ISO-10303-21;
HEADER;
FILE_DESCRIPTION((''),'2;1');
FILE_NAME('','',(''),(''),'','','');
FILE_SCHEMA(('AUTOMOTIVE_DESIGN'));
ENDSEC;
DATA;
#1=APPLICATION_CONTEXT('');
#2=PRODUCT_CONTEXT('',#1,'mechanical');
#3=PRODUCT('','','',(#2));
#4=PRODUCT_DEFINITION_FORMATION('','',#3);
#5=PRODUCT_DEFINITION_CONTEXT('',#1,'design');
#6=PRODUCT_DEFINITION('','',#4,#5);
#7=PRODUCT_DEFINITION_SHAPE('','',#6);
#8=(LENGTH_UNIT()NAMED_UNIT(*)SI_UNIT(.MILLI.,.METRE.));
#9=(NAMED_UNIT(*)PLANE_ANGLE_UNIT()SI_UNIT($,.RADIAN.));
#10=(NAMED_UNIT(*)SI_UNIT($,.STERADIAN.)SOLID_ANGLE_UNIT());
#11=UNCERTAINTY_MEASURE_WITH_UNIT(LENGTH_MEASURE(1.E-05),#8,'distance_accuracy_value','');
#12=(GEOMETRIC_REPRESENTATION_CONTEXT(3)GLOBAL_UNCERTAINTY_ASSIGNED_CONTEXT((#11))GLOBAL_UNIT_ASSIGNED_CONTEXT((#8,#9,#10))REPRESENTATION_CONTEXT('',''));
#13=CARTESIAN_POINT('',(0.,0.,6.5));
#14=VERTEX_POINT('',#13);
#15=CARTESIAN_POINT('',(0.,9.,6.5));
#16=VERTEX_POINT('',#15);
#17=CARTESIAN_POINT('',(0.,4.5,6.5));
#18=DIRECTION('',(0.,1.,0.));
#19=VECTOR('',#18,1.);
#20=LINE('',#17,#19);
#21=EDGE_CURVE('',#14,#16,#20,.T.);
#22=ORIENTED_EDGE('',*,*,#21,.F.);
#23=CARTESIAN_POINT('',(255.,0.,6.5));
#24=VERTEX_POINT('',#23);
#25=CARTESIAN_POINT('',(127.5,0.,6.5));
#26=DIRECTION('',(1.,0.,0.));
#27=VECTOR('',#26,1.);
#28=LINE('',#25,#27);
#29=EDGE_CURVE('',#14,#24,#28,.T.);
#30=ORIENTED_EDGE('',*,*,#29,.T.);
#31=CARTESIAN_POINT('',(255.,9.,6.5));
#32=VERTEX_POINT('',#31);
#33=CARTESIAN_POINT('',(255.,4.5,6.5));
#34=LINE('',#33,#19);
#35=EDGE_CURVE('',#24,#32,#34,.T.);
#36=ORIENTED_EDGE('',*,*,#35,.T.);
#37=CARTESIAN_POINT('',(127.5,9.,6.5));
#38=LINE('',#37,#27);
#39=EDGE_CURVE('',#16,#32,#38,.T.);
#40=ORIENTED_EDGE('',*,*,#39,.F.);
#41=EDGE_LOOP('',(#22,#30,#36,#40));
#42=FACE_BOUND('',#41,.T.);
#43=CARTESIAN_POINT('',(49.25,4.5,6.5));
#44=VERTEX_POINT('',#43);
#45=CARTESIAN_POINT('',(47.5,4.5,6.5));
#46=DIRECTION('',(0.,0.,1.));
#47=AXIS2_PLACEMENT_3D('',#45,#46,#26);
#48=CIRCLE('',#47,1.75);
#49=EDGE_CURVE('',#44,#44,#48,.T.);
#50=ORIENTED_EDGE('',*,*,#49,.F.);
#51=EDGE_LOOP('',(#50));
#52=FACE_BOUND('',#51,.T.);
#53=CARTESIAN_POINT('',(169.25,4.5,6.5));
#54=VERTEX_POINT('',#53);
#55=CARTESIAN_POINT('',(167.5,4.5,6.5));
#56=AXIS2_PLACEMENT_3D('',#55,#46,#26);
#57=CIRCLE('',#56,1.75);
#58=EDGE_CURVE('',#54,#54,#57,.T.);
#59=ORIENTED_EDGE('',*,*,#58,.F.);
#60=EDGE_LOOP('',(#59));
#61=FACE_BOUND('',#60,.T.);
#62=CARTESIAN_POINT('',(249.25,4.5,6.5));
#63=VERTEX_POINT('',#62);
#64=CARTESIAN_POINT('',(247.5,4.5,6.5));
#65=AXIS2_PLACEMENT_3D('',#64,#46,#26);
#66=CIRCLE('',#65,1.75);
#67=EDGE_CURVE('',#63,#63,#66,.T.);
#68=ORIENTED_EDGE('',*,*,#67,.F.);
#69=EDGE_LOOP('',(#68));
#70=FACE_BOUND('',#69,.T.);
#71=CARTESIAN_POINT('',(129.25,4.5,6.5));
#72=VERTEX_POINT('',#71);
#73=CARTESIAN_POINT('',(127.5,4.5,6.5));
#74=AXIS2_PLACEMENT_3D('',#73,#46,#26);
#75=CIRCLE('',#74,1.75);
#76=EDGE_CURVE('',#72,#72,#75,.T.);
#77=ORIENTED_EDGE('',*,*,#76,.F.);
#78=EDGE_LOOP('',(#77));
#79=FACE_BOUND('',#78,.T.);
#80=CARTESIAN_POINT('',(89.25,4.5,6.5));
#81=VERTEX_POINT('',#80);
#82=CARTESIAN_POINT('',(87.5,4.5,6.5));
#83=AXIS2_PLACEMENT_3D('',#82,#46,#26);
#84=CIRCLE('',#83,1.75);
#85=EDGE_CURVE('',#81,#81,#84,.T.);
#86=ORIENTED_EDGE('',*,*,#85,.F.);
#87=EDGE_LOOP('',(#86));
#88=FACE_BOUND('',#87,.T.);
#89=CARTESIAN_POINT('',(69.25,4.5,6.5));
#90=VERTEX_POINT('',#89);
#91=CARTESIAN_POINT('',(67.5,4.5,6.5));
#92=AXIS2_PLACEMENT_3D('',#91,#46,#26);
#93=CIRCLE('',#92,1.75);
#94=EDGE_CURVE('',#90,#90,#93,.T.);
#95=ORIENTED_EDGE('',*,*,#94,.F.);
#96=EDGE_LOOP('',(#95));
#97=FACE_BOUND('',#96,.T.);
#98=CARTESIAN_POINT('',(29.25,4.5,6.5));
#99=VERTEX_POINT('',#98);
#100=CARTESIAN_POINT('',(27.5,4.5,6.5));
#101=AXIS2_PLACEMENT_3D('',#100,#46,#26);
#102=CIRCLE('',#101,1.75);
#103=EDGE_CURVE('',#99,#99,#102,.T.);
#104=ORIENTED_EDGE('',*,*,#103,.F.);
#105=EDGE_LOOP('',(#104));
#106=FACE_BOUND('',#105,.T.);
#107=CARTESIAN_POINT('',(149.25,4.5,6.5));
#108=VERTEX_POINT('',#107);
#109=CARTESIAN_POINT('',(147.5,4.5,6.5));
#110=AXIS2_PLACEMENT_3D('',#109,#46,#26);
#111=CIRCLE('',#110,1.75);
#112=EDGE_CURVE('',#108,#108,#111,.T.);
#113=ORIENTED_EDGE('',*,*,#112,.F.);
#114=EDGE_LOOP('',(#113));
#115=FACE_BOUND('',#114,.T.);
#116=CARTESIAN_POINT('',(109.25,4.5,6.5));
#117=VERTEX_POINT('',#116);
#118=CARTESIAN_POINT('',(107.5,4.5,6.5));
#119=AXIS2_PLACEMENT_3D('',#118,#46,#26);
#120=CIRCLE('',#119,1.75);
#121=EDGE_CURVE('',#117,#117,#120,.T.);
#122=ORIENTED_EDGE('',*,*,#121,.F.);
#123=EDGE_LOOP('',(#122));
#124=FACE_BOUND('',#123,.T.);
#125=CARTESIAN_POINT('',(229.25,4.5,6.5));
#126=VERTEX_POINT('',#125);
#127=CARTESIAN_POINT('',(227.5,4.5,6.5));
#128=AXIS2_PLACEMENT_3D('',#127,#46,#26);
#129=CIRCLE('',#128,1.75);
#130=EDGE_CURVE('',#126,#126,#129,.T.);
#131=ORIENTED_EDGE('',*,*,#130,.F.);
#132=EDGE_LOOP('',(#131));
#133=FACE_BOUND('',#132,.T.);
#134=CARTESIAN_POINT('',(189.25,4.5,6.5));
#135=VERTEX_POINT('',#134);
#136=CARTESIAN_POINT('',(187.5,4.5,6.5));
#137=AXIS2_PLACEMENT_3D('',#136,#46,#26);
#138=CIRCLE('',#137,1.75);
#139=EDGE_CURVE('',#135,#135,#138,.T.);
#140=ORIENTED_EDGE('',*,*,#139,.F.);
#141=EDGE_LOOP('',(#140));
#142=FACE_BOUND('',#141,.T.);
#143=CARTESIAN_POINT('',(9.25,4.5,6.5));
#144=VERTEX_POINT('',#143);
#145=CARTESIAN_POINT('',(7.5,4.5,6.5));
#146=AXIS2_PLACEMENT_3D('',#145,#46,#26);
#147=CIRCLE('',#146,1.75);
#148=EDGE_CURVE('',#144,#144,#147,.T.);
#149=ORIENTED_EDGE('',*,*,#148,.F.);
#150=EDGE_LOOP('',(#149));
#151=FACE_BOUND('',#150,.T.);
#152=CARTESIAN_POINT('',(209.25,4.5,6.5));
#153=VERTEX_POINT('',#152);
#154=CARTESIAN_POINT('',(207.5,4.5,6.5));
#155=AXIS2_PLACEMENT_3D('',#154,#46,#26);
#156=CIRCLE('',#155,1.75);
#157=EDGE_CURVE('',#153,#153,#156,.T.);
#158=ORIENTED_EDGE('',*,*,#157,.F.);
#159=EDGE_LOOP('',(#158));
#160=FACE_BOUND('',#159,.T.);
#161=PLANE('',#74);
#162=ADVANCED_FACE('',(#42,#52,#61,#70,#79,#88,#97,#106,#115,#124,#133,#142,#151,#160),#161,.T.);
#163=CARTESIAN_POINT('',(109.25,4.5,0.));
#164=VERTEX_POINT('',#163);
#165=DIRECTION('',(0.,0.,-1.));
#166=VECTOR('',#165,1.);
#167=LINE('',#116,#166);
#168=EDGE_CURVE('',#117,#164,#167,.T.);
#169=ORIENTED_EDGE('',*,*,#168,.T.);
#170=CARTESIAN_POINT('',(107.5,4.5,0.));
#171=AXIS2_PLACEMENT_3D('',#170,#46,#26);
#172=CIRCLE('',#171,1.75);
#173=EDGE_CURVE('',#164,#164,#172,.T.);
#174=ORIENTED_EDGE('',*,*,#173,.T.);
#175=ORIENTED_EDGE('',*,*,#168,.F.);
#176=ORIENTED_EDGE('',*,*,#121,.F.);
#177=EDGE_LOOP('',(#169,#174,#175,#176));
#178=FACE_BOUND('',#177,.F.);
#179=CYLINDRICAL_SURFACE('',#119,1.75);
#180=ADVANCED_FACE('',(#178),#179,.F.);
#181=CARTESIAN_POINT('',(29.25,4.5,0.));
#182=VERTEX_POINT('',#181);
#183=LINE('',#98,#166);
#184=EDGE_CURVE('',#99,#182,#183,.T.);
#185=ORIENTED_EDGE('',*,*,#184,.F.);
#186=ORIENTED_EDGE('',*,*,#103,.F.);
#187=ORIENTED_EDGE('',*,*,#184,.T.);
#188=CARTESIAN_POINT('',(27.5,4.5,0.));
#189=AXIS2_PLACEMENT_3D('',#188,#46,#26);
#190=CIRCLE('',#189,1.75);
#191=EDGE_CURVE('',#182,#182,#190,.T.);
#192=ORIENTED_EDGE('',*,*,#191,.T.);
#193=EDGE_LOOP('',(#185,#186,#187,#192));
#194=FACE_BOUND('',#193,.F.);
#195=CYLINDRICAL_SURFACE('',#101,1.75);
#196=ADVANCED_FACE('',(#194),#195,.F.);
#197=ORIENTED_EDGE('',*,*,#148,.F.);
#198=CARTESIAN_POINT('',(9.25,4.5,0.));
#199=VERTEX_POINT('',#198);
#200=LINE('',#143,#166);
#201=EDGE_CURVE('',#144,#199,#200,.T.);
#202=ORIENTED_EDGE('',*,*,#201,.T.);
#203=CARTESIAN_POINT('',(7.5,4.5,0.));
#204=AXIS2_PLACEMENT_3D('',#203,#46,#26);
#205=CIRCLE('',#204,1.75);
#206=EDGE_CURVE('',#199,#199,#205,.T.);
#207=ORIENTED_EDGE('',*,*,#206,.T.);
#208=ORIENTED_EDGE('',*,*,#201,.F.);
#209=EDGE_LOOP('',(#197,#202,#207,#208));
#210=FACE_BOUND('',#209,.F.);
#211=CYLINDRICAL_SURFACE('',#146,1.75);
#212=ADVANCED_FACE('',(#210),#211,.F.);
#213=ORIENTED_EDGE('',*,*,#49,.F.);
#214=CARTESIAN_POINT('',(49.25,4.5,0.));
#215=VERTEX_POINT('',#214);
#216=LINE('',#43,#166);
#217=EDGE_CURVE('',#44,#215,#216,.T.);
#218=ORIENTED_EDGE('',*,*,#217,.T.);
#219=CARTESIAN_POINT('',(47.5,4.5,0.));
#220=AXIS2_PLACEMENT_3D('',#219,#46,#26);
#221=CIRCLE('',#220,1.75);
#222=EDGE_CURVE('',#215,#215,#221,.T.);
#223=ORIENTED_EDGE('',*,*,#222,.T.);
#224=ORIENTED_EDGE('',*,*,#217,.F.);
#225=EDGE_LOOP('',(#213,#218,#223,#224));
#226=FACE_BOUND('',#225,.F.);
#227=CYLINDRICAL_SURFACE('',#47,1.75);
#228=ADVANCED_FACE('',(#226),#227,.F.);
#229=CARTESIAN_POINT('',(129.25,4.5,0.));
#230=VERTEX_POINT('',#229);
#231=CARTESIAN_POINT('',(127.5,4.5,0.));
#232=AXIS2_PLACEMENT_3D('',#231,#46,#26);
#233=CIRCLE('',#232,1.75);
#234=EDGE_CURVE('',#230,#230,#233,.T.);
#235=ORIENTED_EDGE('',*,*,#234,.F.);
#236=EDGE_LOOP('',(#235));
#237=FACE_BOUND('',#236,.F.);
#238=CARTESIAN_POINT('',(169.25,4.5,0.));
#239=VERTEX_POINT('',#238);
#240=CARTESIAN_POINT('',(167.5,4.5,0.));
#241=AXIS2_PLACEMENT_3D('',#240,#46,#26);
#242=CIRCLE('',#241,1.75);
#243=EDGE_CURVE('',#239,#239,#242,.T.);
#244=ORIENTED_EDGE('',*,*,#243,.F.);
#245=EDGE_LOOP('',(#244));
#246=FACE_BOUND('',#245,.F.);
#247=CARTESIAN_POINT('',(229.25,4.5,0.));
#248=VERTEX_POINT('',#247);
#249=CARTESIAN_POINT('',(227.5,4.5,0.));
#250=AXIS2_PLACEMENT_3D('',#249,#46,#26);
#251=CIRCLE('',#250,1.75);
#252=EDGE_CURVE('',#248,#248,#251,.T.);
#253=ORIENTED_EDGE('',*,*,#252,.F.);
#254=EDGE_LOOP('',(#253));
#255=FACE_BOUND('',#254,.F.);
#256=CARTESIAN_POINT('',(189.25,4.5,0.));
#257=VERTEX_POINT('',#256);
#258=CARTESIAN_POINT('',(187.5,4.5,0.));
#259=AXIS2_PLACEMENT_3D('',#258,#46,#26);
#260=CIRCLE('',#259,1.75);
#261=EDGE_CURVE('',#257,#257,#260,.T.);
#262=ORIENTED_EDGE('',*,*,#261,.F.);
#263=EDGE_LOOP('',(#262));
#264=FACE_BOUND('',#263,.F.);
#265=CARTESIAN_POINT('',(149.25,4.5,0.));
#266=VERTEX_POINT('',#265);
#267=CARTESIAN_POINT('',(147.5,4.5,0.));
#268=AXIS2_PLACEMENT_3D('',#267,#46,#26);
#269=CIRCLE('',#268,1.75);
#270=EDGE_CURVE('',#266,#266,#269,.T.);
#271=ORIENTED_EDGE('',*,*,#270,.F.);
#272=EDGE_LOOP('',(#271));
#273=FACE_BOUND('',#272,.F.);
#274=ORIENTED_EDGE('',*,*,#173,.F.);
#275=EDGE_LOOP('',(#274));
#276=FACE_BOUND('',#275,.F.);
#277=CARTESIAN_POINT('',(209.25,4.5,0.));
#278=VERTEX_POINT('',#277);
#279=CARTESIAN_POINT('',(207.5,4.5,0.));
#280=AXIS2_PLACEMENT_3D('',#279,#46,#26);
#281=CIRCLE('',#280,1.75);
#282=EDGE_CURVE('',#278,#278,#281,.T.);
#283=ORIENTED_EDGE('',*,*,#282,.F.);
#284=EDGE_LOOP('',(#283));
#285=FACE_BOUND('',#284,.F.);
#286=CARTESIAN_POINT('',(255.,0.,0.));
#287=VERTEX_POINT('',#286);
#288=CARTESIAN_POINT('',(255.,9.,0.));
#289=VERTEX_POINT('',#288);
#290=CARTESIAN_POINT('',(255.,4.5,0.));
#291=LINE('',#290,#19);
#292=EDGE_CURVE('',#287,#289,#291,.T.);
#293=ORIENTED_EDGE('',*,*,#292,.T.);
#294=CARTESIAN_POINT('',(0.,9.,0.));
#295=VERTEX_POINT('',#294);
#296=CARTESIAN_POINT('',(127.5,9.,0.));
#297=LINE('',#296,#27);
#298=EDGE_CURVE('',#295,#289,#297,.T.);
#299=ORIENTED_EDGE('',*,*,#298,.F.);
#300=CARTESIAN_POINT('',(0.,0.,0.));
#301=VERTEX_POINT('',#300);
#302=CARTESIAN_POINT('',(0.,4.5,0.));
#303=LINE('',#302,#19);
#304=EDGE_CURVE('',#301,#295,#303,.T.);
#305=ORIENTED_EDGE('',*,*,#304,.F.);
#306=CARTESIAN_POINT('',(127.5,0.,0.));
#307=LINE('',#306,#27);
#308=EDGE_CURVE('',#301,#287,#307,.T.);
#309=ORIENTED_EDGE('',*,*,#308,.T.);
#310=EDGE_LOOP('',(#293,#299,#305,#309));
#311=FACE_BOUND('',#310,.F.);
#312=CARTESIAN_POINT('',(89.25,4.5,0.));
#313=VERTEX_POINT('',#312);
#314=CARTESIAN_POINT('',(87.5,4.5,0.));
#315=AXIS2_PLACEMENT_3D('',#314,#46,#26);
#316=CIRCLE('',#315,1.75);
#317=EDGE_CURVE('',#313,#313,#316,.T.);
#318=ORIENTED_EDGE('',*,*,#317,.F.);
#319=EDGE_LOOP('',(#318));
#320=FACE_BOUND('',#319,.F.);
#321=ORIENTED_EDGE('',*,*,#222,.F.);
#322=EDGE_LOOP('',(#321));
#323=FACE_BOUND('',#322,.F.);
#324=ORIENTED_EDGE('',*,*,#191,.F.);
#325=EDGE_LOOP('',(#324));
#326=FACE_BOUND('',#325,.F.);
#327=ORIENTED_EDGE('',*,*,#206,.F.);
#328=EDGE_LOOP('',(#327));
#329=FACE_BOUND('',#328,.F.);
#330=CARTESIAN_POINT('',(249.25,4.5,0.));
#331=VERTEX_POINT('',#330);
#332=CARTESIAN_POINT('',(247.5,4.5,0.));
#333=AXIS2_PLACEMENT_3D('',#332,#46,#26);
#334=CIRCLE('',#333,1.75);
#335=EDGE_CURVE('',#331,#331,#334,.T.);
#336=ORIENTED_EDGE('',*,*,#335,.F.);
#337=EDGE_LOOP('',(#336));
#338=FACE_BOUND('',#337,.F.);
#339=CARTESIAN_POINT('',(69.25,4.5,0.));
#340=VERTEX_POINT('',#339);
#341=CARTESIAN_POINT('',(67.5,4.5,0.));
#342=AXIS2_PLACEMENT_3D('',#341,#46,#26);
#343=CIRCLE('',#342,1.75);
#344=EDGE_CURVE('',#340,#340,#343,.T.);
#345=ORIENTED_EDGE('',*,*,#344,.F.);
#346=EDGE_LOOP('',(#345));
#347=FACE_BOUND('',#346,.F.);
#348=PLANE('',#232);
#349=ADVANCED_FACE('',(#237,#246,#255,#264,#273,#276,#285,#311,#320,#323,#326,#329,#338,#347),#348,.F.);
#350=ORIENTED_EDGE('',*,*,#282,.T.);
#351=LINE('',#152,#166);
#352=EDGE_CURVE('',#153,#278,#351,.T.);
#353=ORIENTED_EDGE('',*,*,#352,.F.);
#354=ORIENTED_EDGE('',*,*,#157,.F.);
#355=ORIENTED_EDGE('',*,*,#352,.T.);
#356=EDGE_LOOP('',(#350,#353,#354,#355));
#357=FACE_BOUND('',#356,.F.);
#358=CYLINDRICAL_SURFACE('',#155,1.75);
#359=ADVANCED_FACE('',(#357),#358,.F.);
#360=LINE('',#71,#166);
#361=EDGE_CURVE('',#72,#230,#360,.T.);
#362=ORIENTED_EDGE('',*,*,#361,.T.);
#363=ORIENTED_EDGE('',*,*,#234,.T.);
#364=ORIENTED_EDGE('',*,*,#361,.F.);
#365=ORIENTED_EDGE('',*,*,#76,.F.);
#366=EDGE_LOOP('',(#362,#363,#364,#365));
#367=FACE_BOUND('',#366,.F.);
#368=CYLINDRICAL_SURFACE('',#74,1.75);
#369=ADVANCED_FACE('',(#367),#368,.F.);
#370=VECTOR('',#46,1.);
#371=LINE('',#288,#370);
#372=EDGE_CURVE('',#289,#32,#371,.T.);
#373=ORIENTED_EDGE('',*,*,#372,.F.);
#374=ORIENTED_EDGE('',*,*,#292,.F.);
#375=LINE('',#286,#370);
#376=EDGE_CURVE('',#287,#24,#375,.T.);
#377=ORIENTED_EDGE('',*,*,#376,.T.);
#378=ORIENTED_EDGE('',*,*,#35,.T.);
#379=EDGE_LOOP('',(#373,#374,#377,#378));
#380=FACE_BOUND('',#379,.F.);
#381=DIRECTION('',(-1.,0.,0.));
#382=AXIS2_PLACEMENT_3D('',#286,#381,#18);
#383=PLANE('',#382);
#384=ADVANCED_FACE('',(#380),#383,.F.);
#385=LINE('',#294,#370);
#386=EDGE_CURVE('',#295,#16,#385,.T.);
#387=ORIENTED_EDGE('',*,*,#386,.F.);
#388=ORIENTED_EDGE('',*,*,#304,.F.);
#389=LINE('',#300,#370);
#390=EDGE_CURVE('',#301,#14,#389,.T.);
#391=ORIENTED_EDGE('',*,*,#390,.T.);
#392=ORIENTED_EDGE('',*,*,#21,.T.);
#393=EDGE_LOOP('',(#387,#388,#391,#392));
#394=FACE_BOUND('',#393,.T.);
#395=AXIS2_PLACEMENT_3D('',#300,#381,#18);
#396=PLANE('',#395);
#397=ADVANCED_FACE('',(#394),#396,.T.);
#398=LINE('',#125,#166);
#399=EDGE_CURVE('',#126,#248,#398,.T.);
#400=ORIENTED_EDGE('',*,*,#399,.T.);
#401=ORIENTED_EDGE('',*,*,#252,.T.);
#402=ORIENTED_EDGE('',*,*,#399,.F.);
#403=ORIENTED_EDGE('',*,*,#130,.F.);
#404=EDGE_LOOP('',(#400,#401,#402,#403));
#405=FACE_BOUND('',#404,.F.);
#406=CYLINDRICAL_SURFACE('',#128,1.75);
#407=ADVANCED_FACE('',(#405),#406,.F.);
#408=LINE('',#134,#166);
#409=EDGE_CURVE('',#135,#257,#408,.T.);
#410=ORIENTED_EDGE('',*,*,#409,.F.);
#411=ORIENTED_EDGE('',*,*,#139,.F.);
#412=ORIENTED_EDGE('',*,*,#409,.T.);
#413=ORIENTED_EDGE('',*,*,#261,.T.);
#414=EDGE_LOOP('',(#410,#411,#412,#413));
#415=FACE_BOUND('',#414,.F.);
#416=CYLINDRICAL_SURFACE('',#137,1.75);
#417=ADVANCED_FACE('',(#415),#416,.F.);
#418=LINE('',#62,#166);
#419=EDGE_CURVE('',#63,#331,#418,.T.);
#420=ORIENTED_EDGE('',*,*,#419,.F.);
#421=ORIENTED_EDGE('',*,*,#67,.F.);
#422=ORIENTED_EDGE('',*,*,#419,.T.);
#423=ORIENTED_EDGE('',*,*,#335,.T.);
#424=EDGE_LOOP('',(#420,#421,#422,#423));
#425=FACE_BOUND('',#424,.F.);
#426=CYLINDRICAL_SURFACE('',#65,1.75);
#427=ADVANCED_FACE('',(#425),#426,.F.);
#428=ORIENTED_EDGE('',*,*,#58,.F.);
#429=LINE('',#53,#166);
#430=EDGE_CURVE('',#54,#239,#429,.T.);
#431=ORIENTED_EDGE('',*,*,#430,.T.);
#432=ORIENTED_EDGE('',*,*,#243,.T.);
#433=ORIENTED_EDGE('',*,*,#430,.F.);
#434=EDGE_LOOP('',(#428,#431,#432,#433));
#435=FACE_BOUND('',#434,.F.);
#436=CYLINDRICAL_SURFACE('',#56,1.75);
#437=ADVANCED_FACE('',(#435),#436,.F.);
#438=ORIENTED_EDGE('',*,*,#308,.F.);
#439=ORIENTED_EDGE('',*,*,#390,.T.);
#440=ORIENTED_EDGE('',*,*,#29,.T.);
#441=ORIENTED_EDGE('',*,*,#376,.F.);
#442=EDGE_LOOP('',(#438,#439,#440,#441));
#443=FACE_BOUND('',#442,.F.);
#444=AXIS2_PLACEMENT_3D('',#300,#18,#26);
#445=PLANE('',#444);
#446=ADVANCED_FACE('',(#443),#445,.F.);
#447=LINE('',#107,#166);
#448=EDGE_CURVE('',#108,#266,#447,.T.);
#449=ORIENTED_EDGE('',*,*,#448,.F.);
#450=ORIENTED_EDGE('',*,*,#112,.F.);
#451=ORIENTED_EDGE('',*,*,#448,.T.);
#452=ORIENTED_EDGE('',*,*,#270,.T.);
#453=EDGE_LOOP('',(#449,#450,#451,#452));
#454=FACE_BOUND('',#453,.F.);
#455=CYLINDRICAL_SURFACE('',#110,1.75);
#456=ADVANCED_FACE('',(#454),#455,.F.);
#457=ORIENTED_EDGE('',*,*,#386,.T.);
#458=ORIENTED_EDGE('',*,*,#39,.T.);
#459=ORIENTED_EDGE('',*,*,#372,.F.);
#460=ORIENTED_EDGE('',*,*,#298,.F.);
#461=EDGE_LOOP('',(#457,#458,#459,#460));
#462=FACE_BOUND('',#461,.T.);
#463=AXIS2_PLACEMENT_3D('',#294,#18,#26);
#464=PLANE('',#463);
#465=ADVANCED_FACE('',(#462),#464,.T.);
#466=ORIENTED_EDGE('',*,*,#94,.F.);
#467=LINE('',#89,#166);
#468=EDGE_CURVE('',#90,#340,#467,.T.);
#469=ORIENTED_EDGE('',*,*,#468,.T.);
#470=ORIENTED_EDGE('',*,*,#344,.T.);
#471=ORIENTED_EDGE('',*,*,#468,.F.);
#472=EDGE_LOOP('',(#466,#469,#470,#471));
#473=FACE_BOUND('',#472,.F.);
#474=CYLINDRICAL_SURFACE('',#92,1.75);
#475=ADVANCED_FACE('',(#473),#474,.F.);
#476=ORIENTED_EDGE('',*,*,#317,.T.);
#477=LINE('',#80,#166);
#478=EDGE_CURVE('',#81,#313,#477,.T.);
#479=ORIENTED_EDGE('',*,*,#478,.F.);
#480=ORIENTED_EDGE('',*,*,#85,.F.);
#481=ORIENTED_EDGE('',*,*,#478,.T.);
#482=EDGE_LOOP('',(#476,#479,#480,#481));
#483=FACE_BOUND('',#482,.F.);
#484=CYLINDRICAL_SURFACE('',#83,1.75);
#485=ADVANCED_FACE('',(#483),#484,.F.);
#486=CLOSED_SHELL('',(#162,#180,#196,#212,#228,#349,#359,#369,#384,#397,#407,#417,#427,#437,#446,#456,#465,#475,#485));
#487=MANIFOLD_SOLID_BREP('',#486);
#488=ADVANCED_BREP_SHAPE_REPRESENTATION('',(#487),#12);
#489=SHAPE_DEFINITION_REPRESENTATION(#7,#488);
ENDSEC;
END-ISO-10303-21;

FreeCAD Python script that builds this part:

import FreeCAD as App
import Part
import Sketcher


def add_polygon(sketch, points):
    """Adds a closed chain of lines whose ends are joined by coincident constraints."""
    first, n = sketch.GeometryCount, len(points)
    for a, b in zip(points, points[1:] + points[:1]):
        sketch.addGeometry(Part.LineSegment(App.Vector(*a, 0), App.Vector(*b, 0)), False)
    for i in range(n):
        sketch.addConstraint(Sketcher.Constraint("Coincident", first + i, 2, first + (i + 1) % n, 1))

doc = App.newDocument("Part")
body = doc.addObject("PartDesign::Body", "Body")

# Sketch on XY plane
sketch1 = body.newObject("Sketcher::SketchObject", "Sketch")
sketch1.AttachmentSupport = (doc.getObject("XY_Plane"), [""])
sketch1.MapMode = "FlatFace"
add_polygon(sketch1, [(0, 9), (0, 0), (255, 0), (255, 9)])  # lines 0-3
sketch1.addConstraint([
    Sketcher.Constraint("Vertical", 0),
    Sketcher.Constraint("Horizontal", 1),
    Sketcher.Constraint("Vertical", 2),
    Sketcher.Constraint("Horizontal", 3),
    Sketcher.Constraint("Coincident", 0, 2, -1, 1),
    Sketcher.Constraint("DistanceX", 1, 1, 1, 2, 255.0),
    Sketcher.Constraint("DistanceY", 0, 2, 0, 1, 9.0),
])
pad1 = body.newObject("PartDesign::Pad", "Pad")
pad1.Profile = sketch1
pad1.Length = 6.5

# Sketch on XY plane
sketch2 = body.newObject("Sketcher::SketchObject", "Sketch001")
sketch2.AttachmentSupport = (doc.getObject("XY_Plane"), [""])
sketch2.MapMode = "FlatFace"
sketch2.AttachmentOffset = App.Placement(App.Vector(0, 0, 6.5), App.Rotation())
sketch2.addGeometry(Part.Circle(App.Vector(7.5, 4.5, 0), App.Vector(0, 0, 1), 1.8), False)
sketch2.addConstraint([
    Sketcher.Constraint("Diameter", 0, 3.5),
    Sketcher.Constraint("DistanceX", -1, 1, 0, 3, 7.5),
    Sketcher.Constraint("DistanceY", -1, 1, 0, 3, 4.5),
])
pocket1 = body.newObject("PartDesign::Pocket", "Pocket")
pocket1.Profile = sketch2
pocket1.Length = 6.5
doc.recompute()

linearpattern = body.newObject("PartDesign::LinearPattern", "LinearPattern")
linearpattern.Originals = [pocket1]
linearpattern.Direction = (doc.getObject("X_Axis"), [""])
linearpattern.Mode = "offset"
linearpattern.Offset = 20
linearpattern.Occurrences = 13
body.Tip = linearpattern

doc.recompute()
